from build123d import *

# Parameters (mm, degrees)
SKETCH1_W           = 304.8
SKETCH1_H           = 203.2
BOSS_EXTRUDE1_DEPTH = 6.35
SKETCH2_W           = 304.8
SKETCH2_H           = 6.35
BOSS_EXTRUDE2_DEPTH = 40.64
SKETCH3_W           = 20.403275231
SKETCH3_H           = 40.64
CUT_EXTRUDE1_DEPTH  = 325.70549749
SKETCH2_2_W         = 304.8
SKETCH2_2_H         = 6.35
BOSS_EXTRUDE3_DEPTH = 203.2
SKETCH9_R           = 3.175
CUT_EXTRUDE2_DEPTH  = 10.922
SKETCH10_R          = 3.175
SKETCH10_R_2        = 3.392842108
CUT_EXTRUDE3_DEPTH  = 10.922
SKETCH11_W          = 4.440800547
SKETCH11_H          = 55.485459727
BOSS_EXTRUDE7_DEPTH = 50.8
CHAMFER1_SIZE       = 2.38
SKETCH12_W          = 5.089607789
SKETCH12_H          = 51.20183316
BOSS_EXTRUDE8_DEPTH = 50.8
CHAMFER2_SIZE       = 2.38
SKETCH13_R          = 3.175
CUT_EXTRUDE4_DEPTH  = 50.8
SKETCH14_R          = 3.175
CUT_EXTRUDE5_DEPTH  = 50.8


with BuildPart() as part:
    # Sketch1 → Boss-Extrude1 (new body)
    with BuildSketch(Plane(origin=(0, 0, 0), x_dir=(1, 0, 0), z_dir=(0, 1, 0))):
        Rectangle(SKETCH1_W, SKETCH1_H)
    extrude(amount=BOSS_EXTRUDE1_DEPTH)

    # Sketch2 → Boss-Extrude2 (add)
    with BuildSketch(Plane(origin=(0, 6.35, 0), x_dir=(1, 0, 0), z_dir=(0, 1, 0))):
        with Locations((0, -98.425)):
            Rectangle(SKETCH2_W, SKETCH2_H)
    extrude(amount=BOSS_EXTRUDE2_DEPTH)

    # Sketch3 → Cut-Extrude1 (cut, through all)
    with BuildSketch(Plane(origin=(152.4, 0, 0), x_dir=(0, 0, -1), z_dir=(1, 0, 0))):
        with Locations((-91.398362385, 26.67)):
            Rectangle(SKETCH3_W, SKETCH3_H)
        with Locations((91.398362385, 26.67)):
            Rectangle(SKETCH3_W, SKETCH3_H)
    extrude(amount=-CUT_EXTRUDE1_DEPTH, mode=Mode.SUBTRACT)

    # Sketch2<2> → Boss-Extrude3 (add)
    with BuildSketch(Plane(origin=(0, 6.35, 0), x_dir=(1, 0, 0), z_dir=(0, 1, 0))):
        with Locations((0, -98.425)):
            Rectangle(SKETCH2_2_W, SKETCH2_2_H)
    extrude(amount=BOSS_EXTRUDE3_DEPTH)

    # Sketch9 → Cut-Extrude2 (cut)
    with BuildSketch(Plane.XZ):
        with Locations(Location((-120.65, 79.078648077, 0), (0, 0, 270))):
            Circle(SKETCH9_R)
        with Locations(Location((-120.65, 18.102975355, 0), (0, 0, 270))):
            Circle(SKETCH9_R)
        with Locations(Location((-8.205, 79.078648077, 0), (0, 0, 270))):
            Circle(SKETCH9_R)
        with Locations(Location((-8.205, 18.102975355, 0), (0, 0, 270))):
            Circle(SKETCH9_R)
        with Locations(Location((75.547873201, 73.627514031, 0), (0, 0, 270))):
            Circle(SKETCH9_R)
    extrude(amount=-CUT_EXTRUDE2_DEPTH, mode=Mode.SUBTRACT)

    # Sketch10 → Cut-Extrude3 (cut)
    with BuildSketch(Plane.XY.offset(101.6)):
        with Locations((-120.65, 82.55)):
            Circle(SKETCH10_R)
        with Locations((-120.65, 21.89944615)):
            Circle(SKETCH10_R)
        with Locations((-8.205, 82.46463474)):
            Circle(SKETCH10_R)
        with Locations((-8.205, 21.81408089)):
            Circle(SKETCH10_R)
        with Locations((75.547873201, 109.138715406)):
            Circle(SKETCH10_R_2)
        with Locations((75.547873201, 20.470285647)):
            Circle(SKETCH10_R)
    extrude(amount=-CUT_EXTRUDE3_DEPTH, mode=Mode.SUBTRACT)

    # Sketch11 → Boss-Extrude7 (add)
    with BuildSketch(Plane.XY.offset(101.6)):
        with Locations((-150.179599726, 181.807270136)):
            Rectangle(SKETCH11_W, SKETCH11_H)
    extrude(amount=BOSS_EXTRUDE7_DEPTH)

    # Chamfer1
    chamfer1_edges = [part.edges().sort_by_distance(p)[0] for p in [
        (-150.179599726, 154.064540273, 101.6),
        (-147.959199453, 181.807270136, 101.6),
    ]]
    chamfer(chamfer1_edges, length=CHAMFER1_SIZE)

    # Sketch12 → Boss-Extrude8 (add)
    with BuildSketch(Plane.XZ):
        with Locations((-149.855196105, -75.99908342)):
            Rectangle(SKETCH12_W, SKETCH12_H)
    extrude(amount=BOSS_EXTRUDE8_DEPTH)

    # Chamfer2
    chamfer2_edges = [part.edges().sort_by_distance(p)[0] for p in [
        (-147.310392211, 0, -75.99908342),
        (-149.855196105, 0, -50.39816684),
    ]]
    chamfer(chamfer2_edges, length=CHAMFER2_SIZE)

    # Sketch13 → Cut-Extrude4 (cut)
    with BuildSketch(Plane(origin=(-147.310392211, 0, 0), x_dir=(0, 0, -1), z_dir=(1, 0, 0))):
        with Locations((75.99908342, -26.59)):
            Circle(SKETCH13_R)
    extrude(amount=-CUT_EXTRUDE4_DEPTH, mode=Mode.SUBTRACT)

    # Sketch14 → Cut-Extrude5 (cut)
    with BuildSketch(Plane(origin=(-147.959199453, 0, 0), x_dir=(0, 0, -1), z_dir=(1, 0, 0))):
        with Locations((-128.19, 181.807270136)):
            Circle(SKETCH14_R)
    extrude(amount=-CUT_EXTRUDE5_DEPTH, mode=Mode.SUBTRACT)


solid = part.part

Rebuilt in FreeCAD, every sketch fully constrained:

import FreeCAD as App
import Part
import Sketcher

V = App.Vector
Q = App.Units.Quantity


def edges_at(feature, points):
    """Names of the edges that pass closest to the given points."""
    edges = feature.Shape.Edges
    near = lambda p: min(range(len(edges)), key=lambda i: edges[i].distToShape(Part.Vertex(*p))[0])
    return sorted({f"Edge{near(p) + 1}" for p in points})


def add_polygon(sketch, points):
    """Adds a closed chain of lines whose ends are joined by coincident constraints."""
    first, n = sketch.GeometryCount, len(points)
    for a, b in zip(points, points[1:] + points[:1]):
        sketch.addGeometry(Part.LineSegment(App.Vector(*a, 0), App.Vector(*b, 0)), False)
    for i in range(n):
        sketch.addConstraint(Sketcher.Constraint("Coincident", first + i, 2, first + (i + 1) % n, 1))

doc = App.newDocument("Part")
params = doc.addObject("Spreadsheet::Sheet", "Params")
for row, (alias, value) in enumerate([
    ("sketch1_width", "12 in"),
    ("sketch1_height", "8 in"),
    ("pad1_length", "0.25 in"),
    ("sketch2_width", "12 in"),
    ("sketch2_height", "0.25 in"),
    ("pad2_length", "1.6 in"),
    ("sketch3_width", "1.6 in"),
    ("sketch4_width", "12 in"),
    ("sketch4_height", "0.25 in"),
    ("pad3_length", "8 in"),
    ("sketch5_diameter", "0.25 in"),
    ("pocket2_length", "0.43 in"),
    ("sketch6_diameter", "0.25 in"),
    ("pocket3_length", "0.43 in"),
    ("pad4_length", "2 in"),
    ("chamfer_size", "2.38 mm"),
    ("pad5_length", "2 in"),
    ("chamfer2_size", "2.38 mm"),
    ("sketch9_diameter", "0.25 in"),
    ("pocket4_length", "2 in"),
    ("sketch10_diameter", "0.25 in"),
    ("pocket5_length", "2 in"),
], start=1):
    params.set(f"A{row}", alias)
    params.set(f"B{row}", "=" + value)
    params.setAlias(f"B{row}", alias)

body = doc.addObject("PartDesign::Body", "Body")

# Sketch on XZ plane
sketch1 = doc.addObject("Sketcher::SketchObject", "Sketch")
body.addObject(sketch1)
sketch1.AttachmentSupport = (doc.XZ_Plane, [""])
sketch1.MapMode = "FlatFace"
add_polygon(sketch1, [(-152, -102), (-152, 102), (152, 102), (152, -102)])  # lines 0-3
sketch1.addConstraint([
    Sketcher.Constraint("Vertical", 0),
    Sketcher.Constraint("Horizontal", 1),
    Sketcher.Constraint("Vertical", 2),
    Sketcher.Constraint("Horizontal", 3),
    Sketcher.Constraint("Symmetric", 0, 2, 2, 2, -1, 1),
    Sketcher.Constraint("DistanceX", 1, 1, 1, 2, Q("12 in")),
    Sketcher.Constraint("DistanceY", 0, 1, 0, 2, Q("8 in")),
])
sketch1.setExpression("Constraints[9]", "Params.sketch1_width")
sketch1.setExpression("Constraints[10]", "Params.sketch1_height")
pad1 = doc.addObject("PartDesign::Pad", "Pad")
body.addObject(pad1)
pad1.Profile = sketch1
pad1.setExpression("Length", "Params.pad1_length")
pad1.Reversed = True

# Sketch on XZ plane
sketch2 = doc.addObject("Sketcher::SketchObject", "Sketch001")
body.addObject(sketch2)
sketch2.AttachmentSupport = (doc.XZ_Plane, [""])
sketch2.MapMode = "FlatFace"
sketch2.AttachmentOffset = App.Placement(V(0, 0, -0.25 * 25.4), App.Rotation())
add_polygon(sketch2, [(-152, 95), (-152, 102), (152, 102), (152, 95)])  # lines 0-3
sketch2.addConstraint([
    Sketcher.Constraint("Vertical", 0),
    Sketcher.Constraint("Horizontal", 1),
    Sketcher.Constraint("Vertical", 2),
    Sketcher.Constraint("Horizontal", 3),
    Sketcher.Constraint("DistanceX", 1, 1, 1, 2, Q("12 in")),
    Sketcher.Constraint("DistanceX", 0, 2, -1, 1, Q("6 in")),
    Sketcher.Constraint("DistanceY", -1, 1, 0, 2, Q("4 in")),
    Sketcher.Constraint("DistanceY", 0, 1, 0, 2, Q("0.25 in")),
])
sketch2.setExpression("Constraints[8]", "Params.sketch2_width")
sketch2.setExpression("Constraints[11]", "Params.sketch2_height")
pad2 = doc.addObject("PartDesign::Pad", "Pad001")
body.addObject(pad2)
pad2.Profile = sketch2
pad2.setExpression("Length", "Params.pad2_length")
pad2.Reversed = True

# Sketch on YZ plane
sketch3 = doc.addObject("Sketcher::SketchObject", "Sketch002")
body.addObject(sketch3)
sketch3.AttachmentSupport = (doc.YZ_Plane, [""])
sketch3.MapMode = "FlatFace"
sketch3.AttachmentOffset = App.Placement(V(0, 0, 6 * 25.4), App.Rotation())
add_polygon(sketch3, [(47, 102), (6, 102), (6, 81), (47, 81)])  # lines 0-3
add_polygon(sketch3, [(47, -81), (6, -81), (6, -102), (47, -102)])  # lines 4-7
sketch3.addConstraint([
    Sketcher.Constraint("Horizontal", 0),
    Sketcher.Constraint("Vertical", 1),
    Sketcher.Constraint("Horizontal", 2),
    Sketcher.Constraint("Vertical", 3),
    Sketcher.Constraint("Horizontal", 4),
    Sketcher.Constraint("Vertical", 5),
    Sketcher.Constraint("Horizontal", 6),
    Sketcher.Constraint("Vertical", 7),
    Sketcher.Constraint("Symmetric", 1, 2, 4, 2, -1),
    Sketcher.Constraint("Symmetric", 3, 2, 6, 2, -1),
    Sketcher.Constraint("DistanceX", 0, 2, 0, 1, Q("1.6 in")),
    Sketcher.Constraint("DistanceY", -1, 1, 0, 2, Q("4 in")),
    Sketcher.Constraint("DistanceX", -1, 1, 0, 2, Q("0.25 in")),
    Sketcher.Constraint("DistanceY", 1, 2, 1, 1, Q("20.403275 mm")),
])
sketch3.setExpression("Constraints[18]", "Params.sketch3_width")
pocket1 = doc.addObject("PartDesign::Pocket", "Pocket")
body.addObject(pocket1)
pocket1.Profile = sketch3
pocket1.Type = "ThroughAll"

# Sketch on XZ plane
sketch4 = doc.addObject("Sketcher::SketchObject", "Sketch003")
body.addObject(sketch4)
sketch4.AttachmentSupport = (doc.XZ_Plane, [""])
sketch4.MapMode = "FlatFace"
sketch4.AttachmentOffset = App.Placement(V(0, 0, -0.25 * 25.4), App.Rotation())
add_polygon(sketch4, [(-152, 95), (-152, 102), (152, 102), (152, 95)])  # lines 0-3
sketch4.addConstraint([
    Sketcher.Constraint("Vertical", 0),
    Sketcher.Constraint("Horizontal", 1),
    Sketcher.Constraint("Vertical", 2),
    Sketcher.Constraint("Horizontal", 3),
    Sketcher.Constraint("DistanceX", 1, 1, 1, 2, Q("12 in")),
    Sketcher.Constraint("DistanceX", 0, 2, -1, 1, Q("6 in")),
    Sketcher.Constraint("DistanceY", -1, 1, 0, 2, Q("4 in")),
    Sketcher.Constraint("DistanceY", 0, 1, 0, 2, Q("0.25 in")),
])
sketch4.setExpression("Constraints[8]", "Params.sketch4_width")
sketch4.setExpression("Constraints[11]", "Params.sketch4_height")
pad3 = doc.addObject("PartDesign::Pad", "Pad002")
body.addObject(pad3)
pad3.Profile = sketch4
pad3.setExpression("Length", "Params.pad3_length")
pad3.Reversed = True

# Sketch on XZ plane
sketch5 = doc.addObject("Sketcher::SketchObject", "Sketch004")
body.addObject(sketch5)
sketch5.AttachmentSupport = (doc.XZ_Plane, [""])
sketch5.MapMode = "FlatFace"
sketch5.addGeometry([
    Part.Circle(V(-120.7, 79.1, 0), V(0, 0, 1), 3.2),  # 0
    Part.Circle(V(-120.7, 18.1, 0), V(0, 0, 1), 3.2),  # 1
    Part.Circle(V(-8.2, 79.1, 0), V(0, 0, 1), 3.2),  # 2
    Part.Circle(V(-8.2, 18.1, 0), V(0, 0, 1), 3.2),  # 3
    Part.Circle(V(75.5, 73.6, 0), V(0, 0, 1), 3.2),  # 4
], False)
sketch5.addConstraint([
    Sketcher.Constraint("Equal", 0, 1),
    Sketcher.Constraint("Equal", 1, 2),
    Sketcher.Constraint("Equal", 2, 3),
    Sketcher.Constraint("Equal", 3, 4),
    Sketcher.Constraint("Horizontal", 0, 3, 2, 3),
    Sketcher.Constraint("Horizontal", 1, 3, 3, 3),
    Sketcher.Constraint("Vertical", 0, 3, 1, 3),
    Sketcher.Constraint("Vertical", 2, 3, 3, 3),
    Sketcher.Constraint("Diameter", 0, Q("0.25 in")),
    Sketcher.Constraint("DistanceX", 0, 3, -1, 1, Q("4.75 in")),
    Sketcher.Constraint("DistanceX", 2, 3, -1, 1, Q("8.205 mm")),
    Sketcher.Constraint("DistanceY", -1, 1, 0, 3, Q("79.078648 mm")),
    Sketcher.Constraint("DistanceY", 3, 3, 4, 3, Q("55.524539 mm")),
    Sketcher.Constraint("DistanceY", -1, 1, 1, 3, Q("18.102975 mm")),
    Sketcher.Constraint("DistanceX", -1, 1, 4, 3, Q("75.547873 mm")),
])
sketch5.setExpression("Constraints[8]", "Params.sketch5_diameter")
pocket2 = doc.addObject("PartDesign::Pocket", "Pocket001")
body.addObject(pocket2)
pocket2.Profile = sketch5
pocket2.setExpression("Length", "Params.pocket2_length")

# Sketch on XY plane
sketch6 = doc.addObject("Sketcher::SketchObject", "Sketch005")
body.addObject(sketch6)
sketch6.AttachmentSupport = (doc.XY_Plane, [""])
sketch6.MapMode = "FlatFace"
sketch6.AttachmentOffset = App.Placement(V(0, 0, 4 * 25.4), App.Rotation())
sketch6.addGeometry([
    Part.Circle(V(-120.7, 82.5, 0), V(0, 0, 1), 3.2),  # 0
    Part.Circle(V(-120.7, 21.9, 0), V(0, 0, 1), 3.2),  # 1
    Part.Circle(V(-8.2, 82.5, 0), V(0, 0, 1), 3.2),  # 2
    Part.Circle(V(-8.2, 21.8, 0), V(0, 0, 1), 3.2),  # 3
    Part.Circle(V(75.5, 109.1, 0), V(0, 0, 1), 3.4),  # 4
    Part.Circle(V(75.5, 20.5, 0), V(0, 0, 1), 3.2),  # 5
], False)
sketch6.addConstraint([
    Sketcher.Constraint("Equal", 0, 1),
    Sketcher.Constraint("Equal", 1, 2),
    Sketcher.Constraint("Equal", 2, 3),
    Sketcher.Constraint("Equal", 3, 5),
    Sketcher.Constraint("Vertical", 0, 3, 1, 3),
    Sketcher.Constraint("Vertical", 2, 3, 3, 3),
    Sketcher.Constraint("Vertical", 4, 3, 5, 3),
    Sketcher.Constraint("Diameter", 0, Q("0.25 in")),
    Sketcher.Constraint("DistanceX", 0, 3, -1, 1, Q("4.75 in")),
    Sketcher.Constraint("DistanceY", -1, 1, 0, 3, Q("3.25 in")),
    Sketcher.Constraint("Diameter", 4, Q("6.785684 mm")),
    Sketcher.Constraint("DistanceY", -1, 1, 4, 3, Q("4.2967998 in")),
    Sketcher.Constraint("DistanceX", 2, 3, -1, 1, Q("8.205 mm")),
    Sketcher.Constraint("DistanceY", -1, 1, 3, 3, Q("21.814081 mm")),
    Sketcher.Constraint("DistanceY", 1, 3, 2, 3, Q("60.565189 mm")),
    Sketcher.Constraint("DistanceY", 2, 3, 4, 3, Q("26.674081 mm")),
    Sketcher.Constraint("DistanceY", 5, 3, 4, 3, Q("88.66843 mm")),
    Sketcher.Constraint("DistanceX", -1, 1, 4, 3, Q("75.547873 mm")),
])
sketch6.setExpression("Constraints[7]", "Params.sketch6_diameter")
pocket3 = doc.addObject("PartDesign::Pocket", "Pocket002")
body.addObject(pocket3)
pocket3.Profile = sketch6
pocket3.setExpression("Length", "Params.pocket3_length")

# Sketch on XY plane
sketch7 = doc.addObject("Sketcher::SketchObject", "Sketch006")
body.addObject(sketch7)
sketch7.AttachmentSupport = (doc.XY_Plane, [""])
sketch7.MapMode = "FlatFace"
sketch7.AttachmentOffset = App.Placement(V(0, 0, 4 * 25.4), App.Rotation())
add_polygon(sketch7, [(-152.4, 209.5), (-152.4, 154.1), (-148, 154.1), (-148, 209.5)])  # lines 0-3
sketch7.addConstraint([
    Sketcher.Constraint("Vertical", 0),
    Sketcher.Constraint("Horizontal", 1),
    Sketcher.Constraint("Vertical", 2),
    Sketcher.Constraint("Horizontal", 3),
    Sketcher.Constraint("DistanceX", 0, 2, -1, 1, Q("6 in")),
    Sketcher.Constraint("DistanceY", -1, 1, 2, 2, Q("8.25 in")),
    Sketcher.Constraint("DistanceX", 1, 1, 1, 2, Q("4.440801 mm")),
    Sketcher.Constraint("DistanceY", 0, 2, 0, 1, Q("55.48546 mm")),
])
pad4 = doc.addObject("PartDesign::Pad", "Pad003")
body.addObject(pad4)
pad4.Profile = sketch7
pad4.setExpression("Length", "Params.pad4_length")
doc.recompute()

chamfer = doc.addObject("PartDesign::Chamfer", "Chamfer")
body.addObject(chamfer)
chamfer.Base = (pad4, edges_at(pad4, [(-150.18, 154.065, 101.6), (-147.959, 181.807, 101.6)]))
chamfer.setExpression("Size", "Params.chamfer_size")

# Sketch on XZ plane
sketch8 = doc.addObject("Sketcher::SketchObject", "Sketch007")
body.addObject(sketch8)
sketch8.AttachmentSupport = (doc.XZ_Plane, [""])
sketch8.MapMode = "FlatFace"
add_polygon(sketch8, [(-152, -50), (-152, -102), (-147, -102), (-147, -50)])  # lines 0-3
sketch8.addConstraint([
    Sketcher.Constraint("Vertical", 0),
    Sketcher.Constraint("Horizontal", 1),
    Sketcher.Constraint("Vertical", 2),
    Sketcher.Constraint("Horizontal", 3),
    Sketcher.Constraint("DistanceX", 0, 2, -1, 1, Q("6 in")),
    Sketcher.Constraint("DistanceY", 0, 2, -1, 1, Q("4 in")),
    Sketcher.Constraint("DistanceX", 1, 1, 1, 2, Q("5.089608 mm")),
    Sketcher.Constraint("DistanceY", 0, 2, 0, 1, Q("51.201833 mm")),
])
pad5 = doc.addObject("PartDesign::Pad", "Pad004")
body.addObject(pad5)
pad5.Profile = sketch8
pad5.setExpression("Length", "Params.pad5_length")
doc.recompute()

chamfer2 = doc.addObject("PartDesign::Chamfer", "Chamfer001")
body.addObject(chamfer2)
chamfer2.Base = (pad5, edges_at(pad5, [(-147.31, 0, -75.999), (-149.855, 0, -50.398)]))
chamfer2.setExpression("Size", "Params.chamfer2_size")

# Sketch on YZ plane
sketch9 = doc.addObject("Sketcher::SketchObject", "Sketch008")
body.addObject(sketch9)
sketch9.AttachmentSupport = (doc.YZ_Plane, [""])
sketch9.MapMode = "FlatFace"
sketch9.AttachmentOffset = App.Placement(V(0, 0, -147.310392), App.Rotation())
sketch9.addGeometry(Part.Circle(V(-26.6, -76, 0), V(0, 0, 1), 3.2), False)
sketch9.addConstraint([
    Sketcher.Constraint("Diameter", 0, Q("0.25 in")),
    Sketcher.Constraint("DistanceX", 0, 3, -1, 1, Q("26.59 mm")),
    Sketcher.Constraint("DistanceY", 0, 3, -1, 1, Q("75.999083 mm")),
])
sketch9.setExpression("Constraints[0]", "Params.sketch9_diameter")
pocket4 = doc.addObject("PartDesign::Pocket", "Pocket003")
body.addObject(pocket4)
pocket4.Profile = sketch9
pocket4.setExpression("Length", "Params.pocket4_length")

# Sketch on YZ plane
sketch10 = doc.addObject("Sketcher::SketchObject", "Sketch009")
body.addObject(sketch10)
sketch10.AttachmentSupport = (doc.YZ_Plane, [""])
sketch10.MapMode = "FlatFace"
sketch10.AttachmentOffset = App.Placement(V(0, 0, -147.959199), App.Rotation())
sketch10.addGeometry(Part.Circle(V(181.8, 128.2, 0), V(0, 0, 1), 3.2), False)
sketch10.addConstraint([
    Sketcher.Constraint("Diameter", 0, Q("0.25 in")),
    Sketcher.Constraint("DistanceY", -1, 1, 0, 3, Q("128.19 mm")),
    Sketcher.Constraint("DistanceX", -1, 1, 0, 3, Q("181.80727 mm")),
])
sketch10.setExpression("Constraints[0]", "Params.sketch10_diameter")
pocket5 = doc.addObject("PartDesign::Pocket", "Pocket004")
body.addObject(pocket5)
pocket5.Profile = sketch10
pocket5.setExpression("Length", "Params.pocket5_length")

doc.recompute()
